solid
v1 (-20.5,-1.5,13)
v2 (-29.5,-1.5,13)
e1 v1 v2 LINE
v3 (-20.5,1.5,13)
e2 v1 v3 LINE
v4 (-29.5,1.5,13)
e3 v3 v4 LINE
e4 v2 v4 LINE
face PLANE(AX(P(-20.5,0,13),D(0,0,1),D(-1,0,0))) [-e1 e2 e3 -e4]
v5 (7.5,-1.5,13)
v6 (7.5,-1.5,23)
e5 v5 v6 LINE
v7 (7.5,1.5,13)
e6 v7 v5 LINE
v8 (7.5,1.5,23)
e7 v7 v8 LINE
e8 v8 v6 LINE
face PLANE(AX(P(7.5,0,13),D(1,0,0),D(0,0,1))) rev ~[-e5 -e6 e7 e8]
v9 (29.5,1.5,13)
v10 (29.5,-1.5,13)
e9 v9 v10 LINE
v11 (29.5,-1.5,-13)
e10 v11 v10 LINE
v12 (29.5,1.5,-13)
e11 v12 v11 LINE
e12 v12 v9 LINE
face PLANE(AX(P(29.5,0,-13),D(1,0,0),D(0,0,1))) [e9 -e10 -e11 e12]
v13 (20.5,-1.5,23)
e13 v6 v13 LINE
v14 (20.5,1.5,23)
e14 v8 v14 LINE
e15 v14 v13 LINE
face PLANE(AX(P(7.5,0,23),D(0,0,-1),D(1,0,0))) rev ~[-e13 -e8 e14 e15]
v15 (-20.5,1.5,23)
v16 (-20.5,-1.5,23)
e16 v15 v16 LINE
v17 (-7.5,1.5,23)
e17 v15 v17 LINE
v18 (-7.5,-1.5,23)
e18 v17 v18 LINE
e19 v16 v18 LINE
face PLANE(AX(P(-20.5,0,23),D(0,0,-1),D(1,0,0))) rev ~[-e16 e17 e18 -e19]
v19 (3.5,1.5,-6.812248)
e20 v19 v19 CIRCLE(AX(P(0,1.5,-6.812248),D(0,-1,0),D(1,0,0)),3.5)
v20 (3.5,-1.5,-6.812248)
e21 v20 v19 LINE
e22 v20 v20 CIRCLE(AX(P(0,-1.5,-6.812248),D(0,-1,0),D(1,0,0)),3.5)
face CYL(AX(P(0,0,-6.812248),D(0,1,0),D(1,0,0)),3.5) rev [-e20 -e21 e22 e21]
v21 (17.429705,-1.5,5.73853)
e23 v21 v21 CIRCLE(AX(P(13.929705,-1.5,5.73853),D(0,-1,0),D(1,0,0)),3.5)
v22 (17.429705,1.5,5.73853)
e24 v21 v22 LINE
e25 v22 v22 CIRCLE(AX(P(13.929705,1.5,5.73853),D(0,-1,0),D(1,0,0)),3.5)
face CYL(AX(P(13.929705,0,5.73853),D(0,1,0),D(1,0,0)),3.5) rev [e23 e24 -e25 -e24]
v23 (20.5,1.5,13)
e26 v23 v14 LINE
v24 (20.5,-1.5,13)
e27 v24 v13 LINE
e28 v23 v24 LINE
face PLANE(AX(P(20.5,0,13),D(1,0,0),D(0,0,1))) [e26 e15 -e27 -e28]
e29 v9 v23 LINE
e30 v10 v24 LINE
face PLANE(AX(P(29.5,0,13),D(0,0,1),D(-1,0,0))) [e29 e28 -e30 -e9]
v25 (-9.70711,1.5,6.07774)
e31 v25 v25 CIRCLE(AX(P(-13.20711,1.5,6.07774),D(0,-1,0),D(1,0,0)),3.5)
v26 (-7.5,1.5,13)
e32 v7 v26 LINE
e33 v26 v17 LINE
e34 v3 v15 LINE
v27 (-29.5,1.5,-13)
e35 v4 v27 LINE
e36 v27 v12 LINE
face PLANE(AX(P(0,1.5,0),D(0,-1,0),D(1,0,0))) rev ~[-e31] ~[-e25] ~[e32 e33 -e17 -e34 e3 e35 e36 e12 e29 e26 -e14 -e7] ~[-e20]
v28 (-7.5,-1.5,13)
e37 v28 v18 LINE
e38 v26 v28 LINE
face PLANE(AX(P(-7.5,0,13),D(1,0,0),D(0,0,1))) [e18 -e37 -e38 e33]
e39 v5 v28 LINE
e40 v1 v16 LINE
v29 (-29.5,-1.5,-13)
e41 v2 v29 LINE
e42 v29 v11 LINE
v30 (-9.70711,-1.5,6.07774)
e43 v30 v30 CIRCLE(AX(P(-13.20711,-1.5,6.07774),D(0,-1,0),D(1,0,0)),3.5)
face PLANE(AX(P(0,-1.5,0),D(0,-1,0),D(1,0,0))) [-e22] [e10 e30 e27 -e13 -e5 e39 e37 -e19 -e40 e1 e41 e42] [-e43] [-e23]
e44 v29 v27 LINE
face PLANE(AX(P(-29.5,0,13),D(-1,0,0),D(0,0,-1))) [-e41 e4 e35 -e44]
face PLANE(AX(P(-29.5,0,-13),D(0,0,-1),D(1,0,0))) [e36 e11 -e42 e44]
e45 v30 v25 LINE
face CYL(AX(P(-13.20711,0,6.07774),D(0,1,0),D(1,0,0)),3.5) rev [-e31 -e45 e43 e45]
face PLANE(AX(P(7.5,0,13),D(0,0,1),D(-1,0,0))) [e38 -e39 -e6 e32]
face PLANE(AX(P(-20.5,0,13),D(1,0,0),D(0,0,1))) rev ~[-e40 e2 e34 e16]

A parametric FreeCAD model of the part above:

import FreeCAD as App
import Part
import Sketcher

V = App.Vector


def add_polygon(sketch, points):
    """Adds a closed chain of lines whose ends are joined by coincident constraints."""
    first, n = sketch.GeometryCount, len(points)
    for a, b in zip(points, points[1:] + points[:1]):
        sketch.addGeometry(Part.LineSegment(App.Vector(*a, 0), App.Vector(*b, 0)), False)
    for i in range(n):
        sketch.addConstraint(Sketcher.Constraint("Coincident", first + i, 2, first + (i + 1) % n, 1))

doc = App.newDocument("Part")
body = doc.addObject("PartDesign::Body", "Body")

sketch1 = body.newObject("Sketcher::SketchObject", "Sketch")
sketch1.AttachmentSupport = (doc.getObject("XZ_Plane"), [""])
sketch1.MapMode = "FlatFace"
add_polygon(sketch1, [(-29.5, -13), (29.5, -13), (29.5, 13), (20.5, 13), (20.5, 23), (7.5, 23), (7.5, 13), (-7.5, 13), (-7.5, 23), (-20.5, 23), (-20.5, 13), (-29.5, 13)])
sketch1.addGeometry(Part.Circle(V(0, -6.8, 0), V(0, 0, 1), 3.5), False)
sketch1.addGeometry(Part.Circle(V(-13.2, 6.1, 0), V(0, 0, 1), 3.5), False)
sketch1.addGeometry(Part.Circle(V(13.9, 5.7, 0), V(0, 0, 1), 3.5), False)
sketch1.addConstraint(Sketcher.Constraint("Horizontal", 0))
sketch1.addConstraint(Sketcher.Constraint("Vertical", 1))
sketch1.addConstraint(Sketcher.Constraint("Horizontal", 2))
sketch1.addConstraint(Sketcher.Constraint("Vertical", 3))
sketch1.addConstraint(Sketcher.Constraint("Horizontal", 4))
sketch1.addConstraint(Sketcher.Constraint("Vertical", 5))
sketch1.addConstraint(Sketcher.Constraint("Horizontal", 6))
sketch1.addConstraint(Sketcher.Constraint("Vertical", 7))
sketch1.addConstraint(Sketcher.Constraint("Horizontal", 8))
sketch1.addConstraint(Sketcher.Constraint("Vertical", 9))
sketch1.addConstraint(Sketcher.Constraint("Horizontal", 10))
sketch1.addConstraint(Sketcher.Constraint("Vertical", 11))
sketch1.addConstraint(Sketcher.Constraint("Equal", 12, 13))
sketch1.addConstraint(Sketcher.Constraint("Equal", 13, 14))
sketch1.addConstraint(Sketcher.Constraint("Symmetric", 0, 2, 10, 2, -1, 1))
sketch1.addConstraint(Sketcher.Constraint("Symmetric", 4, 2, 7, 2, -2))
sketch1.addConstraint(Sketcher.Constraint("Symmetric", 2, 2, 9, 2, -2))
sketch1.addConstraint(Sketcher.Constraint("PointOnObject", 12, 3, -2))
sketch1.addConstraint(Sketcher.Constraint("Horizontal", 2, 2, 5, 2))
sketch1.addConstraint(Sketcher.Constraint("Diameter", 12, 7.0))
sketch1.addConstraint(Sketcher.Constraint("DistanceX", 0, 1, 0, 2, 59.0))
sketch1.addConstraint(Sketcher.Constraint("DistanceX", 2, 2, 2, 1, 9.0))
sketch1.addConstraint(Sketcher.Constraint("DistanceX", 4, 2, 4, 1, 13.0))
sketch1.addConstraint(Sketcher.Constraint("DistanceY", 1, 1, 1, 2, 26.0))
sketch1.addConstraint(Sketcher.Constraint("DistanceY", 3, 1, 3, 2, 10.0))
sketch1.addConstraint(Sketcher.Constraint("DistanceY", 12, 3, -1, 1, 6.812248))
sketch1.addConstraint(Sketcher.Constraint("DistanceX", 13, 3, -1, 1, 13.20711))
sketch1.addConstraint(Sketcher.Constraint("DistanceY", -1, 1, 13, 3, 6.07774))
sketch1.addConstraint(Sketcher.Constraint("DistanceY", -1, 1, 14, 3, 5.73853))
sketch1.addConstraint(Sketcher.Constraint("DistanceX", -1, 1, 14, 3, 13.929705))
pad1 = body.newObject("PartDesign::Pad", "Pad")
pad1.Profile = sketch1
pad1.Length = 3
pad1.Midplane = True

doc.recompute()
